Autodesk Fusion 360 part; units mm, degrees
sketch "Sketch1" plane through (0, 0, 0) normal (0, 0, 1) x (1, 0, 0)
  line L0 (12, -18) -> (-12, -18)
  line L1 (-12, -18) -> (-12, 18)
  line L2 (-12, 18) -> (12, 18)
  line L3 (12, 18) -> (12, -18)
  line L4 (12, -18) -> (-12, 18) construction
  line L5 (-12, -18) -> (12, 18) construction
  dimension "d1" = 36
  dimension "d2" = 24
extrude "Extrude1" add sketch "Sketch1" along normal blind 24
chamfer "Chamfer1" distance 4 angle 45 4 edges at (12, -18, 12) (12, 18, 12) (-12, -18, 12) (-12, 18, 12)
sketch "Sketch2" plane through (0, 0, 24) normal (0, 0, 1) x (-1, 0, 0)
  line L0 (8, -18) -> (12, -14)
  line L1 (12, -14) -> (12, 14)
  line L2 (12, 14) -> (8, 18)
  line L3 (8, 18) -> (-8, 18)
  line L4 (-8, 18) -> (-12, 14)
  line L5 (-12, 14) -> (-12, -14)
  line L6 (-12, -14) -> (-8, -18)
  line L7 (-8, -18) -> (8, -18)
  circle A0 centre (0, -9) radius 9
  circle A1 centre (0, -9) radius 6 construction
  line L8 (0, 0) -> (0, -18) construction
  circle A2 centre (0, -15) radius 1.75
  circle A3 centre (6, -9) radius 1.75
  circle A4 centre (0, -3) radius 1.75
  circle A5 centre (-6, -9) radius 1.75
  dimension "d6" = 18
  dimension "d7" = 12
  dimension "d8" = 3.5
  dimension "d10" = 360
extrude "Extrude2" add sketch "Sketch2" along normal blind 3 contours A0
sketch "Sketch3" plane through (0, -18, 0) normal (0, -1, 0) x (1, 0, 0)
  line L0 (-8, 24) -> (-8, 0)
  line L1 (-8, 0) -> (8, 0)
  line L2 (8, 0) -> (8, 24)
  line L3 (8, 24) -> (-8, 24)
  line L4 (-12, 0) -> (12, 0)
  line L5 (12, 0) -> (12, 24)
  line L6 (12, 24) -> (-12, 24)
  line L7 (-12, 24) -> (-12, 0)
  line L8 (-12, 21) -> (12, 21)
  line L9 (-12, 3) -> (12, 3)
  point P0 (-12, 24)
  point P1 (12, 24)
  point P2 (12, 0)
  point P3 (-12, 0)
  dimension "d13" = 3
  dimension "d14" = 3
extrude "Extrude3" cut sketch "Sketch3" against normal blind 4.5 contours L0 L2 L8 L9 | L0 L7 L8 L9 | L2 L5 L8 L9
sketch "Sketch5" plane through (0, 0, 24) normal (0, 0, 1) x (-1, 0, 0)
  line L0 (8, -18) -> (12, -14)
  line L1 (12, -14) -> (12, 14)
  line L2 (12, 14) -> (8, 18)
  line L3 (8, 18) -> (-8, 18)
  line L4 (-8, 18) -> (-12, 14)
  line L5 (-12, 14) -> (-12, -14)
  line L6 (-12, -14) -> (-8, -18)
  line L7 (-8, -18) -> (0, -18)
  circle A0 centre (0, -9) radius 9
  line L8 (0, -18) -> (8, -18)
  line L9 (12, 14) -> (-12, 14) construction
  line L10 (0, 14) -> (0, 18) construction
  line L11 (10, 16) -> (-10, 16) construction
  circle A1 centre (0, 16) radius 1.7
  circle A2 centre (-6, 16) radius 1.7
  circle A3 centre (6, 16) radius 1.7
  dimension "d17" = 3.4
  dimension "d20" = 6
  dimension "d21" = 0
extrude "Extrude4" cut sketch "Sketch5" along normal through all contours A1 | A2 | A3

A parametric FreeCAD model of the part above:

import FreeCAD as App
import Part
import Sketcher

V = App.Vector


def edges_at(feature, points):
    """Names of the edges that pass closest to the given points."""
    edges = feature.Shape.Edges
    near = lambda p: min(range(len(edges)), key=lambda i: edges[i].distToShape(Part.Vertex(*p))[0])
    return sorted({f"Edge{near(p) + 1}" for p in points})

doc = App.newDocument("Part")
body = doc.addObject("PartDesign::Body", "Body")

sketch1 = body.newObject("Sketcher::SketchObject", "Sketch")
sketch1.AttachmentSupport = (doc.getObject("XY_Plane"), [""])
sketch1.MapMode = "FlatFace"
sketch1.addGeometry(Part.LineSegment(V(-12, -18, 0), V(12, -18, 0)), False)
sketch1.addGeometry(Part.LineSegment(V(12, -18, 0), V(12, 18, 0)), False)
sketch1.addGeometry(Part.LineSegment(V(12, 18, 0), V(-12, 18, 0)), False)
sketch1.addGeometry(Part.LineSegment(V(-12, 18, 0), V(-12, -18, 0)), False)
sketch1.addConstraint(Sketcher.Constraint("Coincident", 0, 2, 1, 1))
sketch1.addConstraint(Sketcher.Constraint("Coincident", 1, 2, 2, 1))
sketch1.addConstraint(Sketcher.Constraint("Coincident", 2, 2, 3, 1))
sketch1.addConstraint(Sketcher.Constraint("Coincident", 3, 2, 0, 1))
sketch1.addConstraint(Sketcher.Constraint("Horizontal", 0))
sketch1.addConstraint(Sketcher.Constraint("Vertical", 1))
sketch1.addConstraint(Sketcher.Constraint("Horizontal", 2))
sketch1.addConstraint(Sketcher.Constraint("Vertical", 3))
sketch1.addConstraint(Sketcher.Constraint("Symmetric", 0, 2, 2, 2, -1, 1))
sketch1.addConstraint(Sketcher.Constraint("DistanceX", 0, 1, 0, 2, 24.0))
sketch1.addConstraint(Sketcher.Constraint("DistanceY", 1, 1, 1, 2, 36.0))
pad1 = body.newObject("PartDesign::Pad", "Pad")
pad1.Profile = sketch1
pad1.Length = 24
doc.recompute()

chamfer = body.newObject("PartDesign::Chamfer", "Chamfer")
chamfer.Base = (pad1, edges_at(pad1, [
    (12, -18, 12),
    (12, 18, 12),
    (-12, -18, 12),
    (-12, 18, 12),
]))
chamfer.Size = 4

sketch2 = body.newObject("Sketcher::SketchObject", "Sketch001")
sketch2.AttachmentSupport = (doc.getObject("XY_Plane"), [""])
sketch2.MapMode = "FlatFace"
sketch2.AttachmentOffset = App.Placement(V(0, 0, 24), App.Rotation())
sketch2.addGeometry(Part.Circle(V(0, 9, 0), V(0, 0, 1), 9), False)
sketch2.addGeometry(Part.Circle(V(6, 9, 0), V(0, 0, 1), 1.8), False)
sketch2.addGeometry(Part.Circle(V(0, 15, 0), V(0, 0, 1), 1.8), False)
sketch2.addGeometry(Part.Circle(V(0, 3, 0), V(0, 0, 1), 1.8), False)
sketch2.addGeometry(Part.Circle(V(-6, 9, 0), V(0, 0, 1), 1.8), False)
sketch2.addConstraint(Sketcher.Constraint("Equal", 1, 2))
sketch2.addConstraint(Sketcher.Constraint("Equal", 2, 3))
sketch2.addConstraint(Sketcher.Constraint("Equal", 3, 4))
sketch2.addConstraint(Sketcher.Constraint("Symmetric", 1, 3, 4, 3, -2))
sketch2.addConstraint(Sketcher.Constraint("PointOnObject", 0, 3, -2))
sketch2.addConstraint(Sketcher.Constraint("PointOnObject", 2, 3, -2))
sketch2.addConstraint(Sketcher.Constraint("PointOnObject", 3, 3, -2))
sketch2.addConstraint(Sketcher.Constraint("Horizontal", 0, 3, 1, 3))
sketch2.addConstraint(Sketcher.Constraint("Diameter", 0, 18.0))
sketch2.addConstraint(Sketcher.Constraint("Diameter", 1, 3.5))
sketch2.addConstraint(Sketcher.Constraint("DistanceY", 3, 3, 2, 3, 12.0))
sketch2.addConstraint(Sketcher.Constraint("DistanceX", 4, 3, 1, 3, 12.0))
sketch2.addConstraint(Sketcher.Constraint("DistanceY", -1, 1, 0, 3, 9.0))
sketch2.addConstraint(Sketcher.Constraint("DistanceY", -1, 1, 2, 3, 15.0))
pad2 = body.newObject("PartDesign::Pad", "Pad001")
pad2.Profile = sketch2
pad2.Length = 3

sketch3 = body.newObject("Sketcher::SketchObject", "Sketch002")
sketch3.AttachmentSupport = (doc.getObject("XZ_Plane"), [""])
sketch3.MapMode = "FlatFace"
sketch3.AttachmentOffset = App.Placement(V(0, 0, 18), App.Rotation())
sketch3.addGeometry(Part.LineSegment(V(-12, 21, 0), V(-12, 3, 0)), False)
sketch3.addGeometry(Part.LineSegment(V(-12, 3, 0), V(12, 3, 0)), False)
sketch3.addGeometry(Part.LineSegment(V(12, 3, 0), V(12, 21, 0)), False)
sketch3.addGeometry(Part.LineSegment(V(12, 21, 0), V(-12, 21, 0)), False)
sketch3.addConstraint(Sketcher.Constraint("Coincident", 0, 2, 1, 1))
sketch3.addConstraint(Sketcher.Constraint("Coincident", 1, 2, 2, 1))
sketch3.addConstraint(Sketcher.Constraint("Coincident", 2, 2, 3, 1))
sketch3.addConstraint(Sketcher.Constraint("Coincident", 3, 2, 0, 1))
sketch3.addConstraint(Sketcher.Constraint("Vertical", 0))
sketch3.addConstraint(Sketcher.Constraint("Horizontal", 1))
sketch3.addConstraint(Sketcher.Constraint("Vertical", 2))
sketch3.addConstraint(Sketcher.Constraint("Horizontal", 3))
sketch3.addConstraint(Sketcher.Constraint("DistanceY", -1, 1, 0, 2, 3.0))
sketch3.addConstraint(Sketcher.Constraint("DistanceX", 1, 1, 1, 2, 24.0))
sketch3.addConstraint(Sketcher.Constraint("DistanceY", 0, 2, 0, 1, 18.0))
sketch3.addConstraint(Sketcher.Constraint("DistanceX", 0, 2, -1, 1, 12.0))
pocket1 = body.newObject("PartDesign::Pocket", "Pocket")
pocket1.Profile = sketch3
pocket1.Length = 4.5

sketch4 = body.newObject("Sketcher::SketchObject", "Sketch003")
sketch4.AttachmentSupport = (doc.getObject("XY_Plane"), [""])
sketch4.MapMode = "FlatFace"
sketch4.AttachmentOffset = App.Placement(V(0, 0, 24), App.Rotation())
sketch4.addGeometry(Part.Circle(V(0, -16, 0), V(0, 0, 1), 1.7), False)
sketch4.addGeometry(Part.Circle(V(6, -16, 0), V(0, 0, 1), 1.7), False)
sketch4.addGeometry(Part.Circle(V(-6, -16, 0), V(0, 0, 1), 1.7), False)
sketch4.addConstraint(Sketcher.Constraint("Equal", 0, 1))
sketch4.addConstraint(Sketcher.Constraint("Equal", 1, 2))
sketch4.addConstraint(Sketcher.Constraint("Symmetric", 1, 3, 2, 3, -2))
sketch4.addConstraint(Sketcher.Constraint("PointOnObject", 0, 3, -2))
sketch4.addConstraint(Sketcher.Constraint("Horizontal", 0, 3, 1, 3))
sketch4.addConstraint(Sketcher.Constraint("Diameter", 0, 3.4))
sketch4.addConstraint(Sketcher.Constraint("DistanceX", -1, 1, 1, 3, 6.0))
sketch4.addConstraint(Sketcher.Constraint("DistanceY", 0, 3, -1, 1, 16.0))
pocket2 = body.newObject("PartDesign::Pocket", "Pocket001")
pocket2.Profile = sketch4
pocket2.Type = "ThroughAll"
pocket2.Reversed = True

doc.recompute()
